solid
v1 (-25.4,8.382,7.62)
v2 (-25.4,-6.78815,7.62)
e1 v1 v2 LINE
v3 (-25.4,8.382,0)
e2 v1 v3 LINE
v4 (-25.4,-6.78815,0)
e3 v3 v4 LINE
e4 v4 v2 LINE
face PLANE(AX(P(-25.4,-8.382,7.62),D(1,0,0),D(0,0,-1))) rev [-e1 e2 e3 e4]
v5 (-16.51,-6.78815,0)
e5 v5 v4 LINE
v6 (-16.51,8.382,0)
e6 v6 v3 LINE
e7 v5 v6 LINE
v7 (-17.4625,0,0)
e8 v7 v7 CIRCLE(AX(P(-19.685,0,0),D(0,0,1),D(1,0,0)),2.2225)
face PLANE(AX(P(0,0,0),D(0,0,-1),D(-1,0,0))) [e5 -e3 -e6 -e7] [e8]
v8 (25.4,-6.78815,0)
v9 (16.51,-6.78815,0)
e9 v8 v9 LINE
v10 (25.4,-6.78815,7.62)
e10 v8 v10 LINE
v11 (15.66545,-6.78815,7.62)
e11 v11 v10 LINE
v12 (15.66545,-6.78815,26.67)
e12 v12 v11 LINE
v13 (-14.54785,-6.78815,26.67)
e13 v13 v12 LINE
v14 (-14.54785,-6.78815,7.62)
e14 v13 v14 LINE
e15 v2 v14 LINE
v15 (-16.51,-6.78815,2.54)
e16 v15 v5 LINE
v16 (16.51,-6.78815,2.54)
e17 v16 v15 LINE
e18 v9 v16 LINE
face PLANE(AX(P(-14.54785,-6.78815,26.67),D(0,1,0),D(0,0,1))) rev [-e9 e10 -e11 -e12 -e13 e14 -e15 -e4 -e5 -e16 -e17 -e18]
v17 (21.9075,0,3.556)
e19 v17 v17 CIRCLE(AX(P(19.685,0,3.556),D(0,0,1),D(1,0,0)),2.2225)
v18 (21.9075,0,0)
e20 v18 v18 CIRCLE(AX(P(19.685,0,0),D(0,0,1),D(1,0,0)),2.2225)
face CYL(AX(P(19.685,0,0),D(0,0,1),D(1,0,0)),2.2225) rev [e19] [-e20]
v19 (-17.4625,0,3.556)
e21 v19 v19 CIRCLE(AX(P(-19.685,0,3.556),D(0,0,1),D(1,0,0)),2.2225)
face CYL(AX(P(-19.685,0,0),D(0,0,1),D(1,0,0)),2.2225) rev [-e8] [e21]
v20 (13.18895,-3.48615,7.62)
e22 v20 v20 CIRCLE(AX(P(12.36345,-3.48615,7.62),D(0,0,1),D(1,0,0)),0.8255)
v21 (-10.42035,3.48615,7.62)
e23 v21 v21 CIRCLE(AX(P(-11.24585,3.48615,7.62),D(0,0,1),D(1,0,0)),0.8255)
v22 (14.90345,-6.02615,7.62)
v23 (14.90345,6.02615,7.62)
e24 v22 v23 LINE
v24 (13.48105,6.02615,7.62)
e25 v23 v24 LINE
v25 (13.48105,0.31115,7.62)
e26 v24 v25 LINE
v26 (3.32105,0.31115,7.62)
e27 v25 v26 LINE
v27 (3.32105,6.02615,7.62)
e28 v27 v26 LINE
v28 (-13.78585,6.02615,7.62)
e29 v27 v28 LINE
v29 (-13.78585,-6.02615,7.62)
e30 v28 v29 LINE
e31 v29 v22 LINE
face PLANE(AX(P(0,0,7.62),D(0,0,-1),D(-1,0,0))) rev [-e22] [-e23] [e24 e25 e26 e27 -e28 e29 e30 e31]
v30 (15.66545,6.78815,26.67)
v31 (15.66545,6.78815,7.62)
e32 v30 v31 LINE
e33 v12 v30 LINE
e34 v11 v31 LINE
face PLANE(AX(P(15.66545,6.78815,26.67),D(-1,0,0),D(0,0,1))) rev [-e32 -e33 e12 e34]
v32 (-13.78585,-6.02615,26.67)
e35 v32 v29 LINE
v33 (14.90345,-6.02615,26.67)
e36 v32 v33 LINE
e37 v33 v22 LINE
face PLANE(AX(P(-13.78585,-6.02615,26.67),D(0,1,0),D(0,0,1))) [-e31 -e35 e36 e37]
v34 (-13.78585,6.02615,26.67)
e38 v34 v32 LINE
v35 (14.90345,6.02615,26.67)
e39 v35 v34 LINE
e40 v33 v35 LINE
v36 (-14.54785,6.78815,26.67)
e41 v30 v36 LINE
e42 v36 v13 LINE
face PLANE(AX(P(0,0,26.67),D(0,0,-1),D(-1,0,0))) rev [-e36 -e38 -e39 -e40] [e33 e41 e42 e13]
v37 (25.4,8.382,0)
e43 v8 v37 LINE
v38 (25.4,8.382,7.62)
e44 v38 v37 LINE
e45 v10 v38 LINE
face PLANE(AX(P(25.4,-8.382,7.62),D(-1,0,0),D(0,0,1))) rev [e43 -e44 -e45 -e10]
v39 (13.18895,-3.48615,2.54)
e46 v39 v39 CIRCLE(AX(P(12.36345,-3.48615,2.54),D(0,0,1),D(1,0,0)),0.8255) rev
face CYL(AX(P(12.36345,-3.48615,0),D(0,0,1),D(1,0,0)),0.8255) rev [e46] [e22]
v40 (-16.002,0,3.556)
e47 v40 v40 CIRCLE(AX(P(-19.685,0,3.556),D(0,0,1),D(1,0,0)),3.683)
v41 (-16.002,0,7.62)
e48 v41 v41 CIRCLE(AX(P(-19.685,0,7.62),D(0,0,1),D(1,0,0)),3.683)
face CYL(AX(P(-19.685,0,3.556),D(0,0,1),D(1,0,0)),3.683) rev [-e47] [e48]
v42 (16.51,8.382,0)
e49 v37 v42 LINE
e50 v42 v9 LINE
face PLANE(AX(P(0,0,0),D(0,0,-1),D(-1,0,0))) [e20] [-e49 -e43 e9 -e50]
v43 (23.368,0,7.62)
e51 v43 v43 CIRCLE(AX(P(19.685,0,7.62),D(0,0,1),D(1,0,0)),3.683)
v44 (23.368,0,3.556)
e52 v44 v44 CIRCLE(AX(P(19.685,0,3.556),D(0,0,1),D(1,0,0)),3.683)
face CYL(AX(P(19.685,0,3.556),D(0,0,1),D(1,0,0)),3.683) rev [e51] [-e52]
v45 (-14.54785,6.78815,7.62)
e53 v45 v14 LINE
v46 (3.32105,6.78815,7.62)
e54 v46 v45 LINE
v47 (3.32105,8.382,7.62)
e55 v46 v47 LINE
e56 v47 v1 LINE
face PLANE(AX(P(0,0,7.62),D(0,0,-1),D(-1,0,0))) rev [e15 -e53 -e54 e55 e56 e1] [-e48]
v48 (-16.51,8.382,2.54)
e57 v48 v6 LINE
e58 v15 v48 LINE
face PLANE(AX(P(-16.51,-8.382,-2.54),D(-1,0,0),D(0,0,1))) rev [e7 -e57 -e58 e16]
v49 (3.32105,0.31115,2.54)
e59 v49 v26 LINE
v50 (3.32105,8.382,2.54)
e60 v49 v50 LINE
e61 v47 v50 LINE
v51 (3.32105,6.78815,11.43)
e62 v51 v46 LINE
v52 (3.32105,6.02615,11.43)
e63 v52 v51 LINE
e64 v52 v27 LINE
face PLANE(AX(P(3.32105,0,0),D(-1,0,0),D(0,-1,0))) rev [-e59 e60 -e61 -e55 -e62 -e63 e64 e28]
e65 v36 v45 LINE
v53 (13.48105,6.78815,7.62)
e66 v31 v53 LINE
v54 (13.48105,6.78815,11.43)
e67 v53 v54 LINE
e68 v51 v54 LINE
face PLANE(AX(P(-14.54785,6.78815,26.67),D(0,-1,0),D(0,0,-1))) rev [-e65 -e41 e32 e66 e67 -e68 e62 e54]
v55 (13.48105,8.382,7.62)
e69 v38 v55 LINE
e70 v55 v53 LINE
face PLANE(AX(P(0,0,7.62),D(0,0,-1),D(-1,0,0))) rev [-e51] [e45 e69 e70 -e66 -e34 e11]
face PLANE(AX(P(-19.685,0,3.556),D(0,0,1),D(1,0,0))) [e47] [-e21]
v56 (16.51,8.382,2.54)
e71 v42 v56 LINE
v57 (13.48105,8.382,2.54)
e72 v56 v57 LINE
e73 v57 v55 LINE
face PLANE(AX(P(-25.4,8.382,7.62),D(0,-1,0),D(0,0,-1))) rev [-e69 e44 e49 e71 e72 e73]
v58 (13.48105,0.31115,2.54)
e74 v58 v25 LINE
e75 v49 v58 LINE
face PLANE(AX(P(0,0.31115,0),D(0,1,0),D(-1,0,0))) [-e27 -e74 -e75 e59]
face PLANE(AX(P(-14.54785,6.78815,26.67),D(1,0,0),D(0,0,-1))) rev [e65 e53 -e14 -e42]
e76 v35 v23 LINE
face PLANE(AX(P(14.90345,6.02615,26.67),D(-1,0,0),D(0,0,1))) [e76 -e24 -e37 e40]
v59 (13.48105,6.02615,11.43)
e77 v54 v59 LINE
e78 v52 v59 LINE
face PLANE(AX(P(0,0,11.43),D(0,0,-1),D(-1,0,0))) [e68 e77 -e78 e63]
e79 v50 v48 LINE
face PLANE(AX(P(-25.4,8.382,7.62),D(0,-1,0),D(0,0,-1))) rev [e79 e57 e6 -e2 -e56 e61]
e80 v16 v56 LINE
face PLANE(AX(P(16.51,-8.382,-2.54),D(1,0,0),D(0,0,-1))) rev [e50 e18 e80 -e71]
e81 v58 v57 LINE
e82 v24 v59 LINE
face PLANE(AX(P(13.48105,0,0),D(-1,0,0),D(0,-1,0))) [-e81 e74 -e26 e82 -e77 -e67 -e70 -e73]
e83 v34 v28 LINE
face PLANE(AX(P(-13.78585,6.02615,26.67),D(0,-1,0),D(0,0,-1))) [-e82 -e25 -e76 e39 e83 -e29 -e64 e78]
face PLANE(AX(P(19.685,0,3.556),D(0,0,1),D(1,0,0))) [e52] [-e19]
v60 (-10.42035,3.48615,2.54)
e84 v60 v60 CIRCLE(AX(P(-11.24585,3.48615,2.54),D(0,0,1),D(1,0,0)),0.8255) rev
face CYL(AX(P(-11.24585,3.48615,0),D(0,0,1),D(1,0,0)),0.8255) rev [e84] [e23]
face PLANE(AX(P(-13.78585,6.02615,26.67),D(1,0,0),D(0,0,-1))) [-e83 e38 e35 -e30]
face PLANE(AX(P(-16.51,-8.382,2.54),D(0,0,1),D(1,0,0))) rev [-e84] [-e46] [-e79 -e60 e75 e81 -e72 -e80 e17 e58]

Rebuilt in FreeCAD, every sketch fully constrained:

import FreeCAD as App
import Part
import Sketcher

V = App.Vector
Q = App.Units.Quantity

doc = App.newDocument("Part")
body = doc.addObject("PartDesign::Body", "Body")

# Sketch on XY plane
sketch1 = doc.addObject("Sketcher::SketchObject", "Sketch")
body.addObject(sketch1)
sketch1.AttachmentSupport = (doc.XY_Plane, [""])
sketch1.MapMode = "FlatFace"
sketch1.addGeometry([
    Part.LineSegment(V(-25.4, 8.382, 0), V(-25.4, -8.382, 0)),
    Part.LineSegment(V(-25.4, -8.382, 0), V(25.4, -8.382, 0)),
    Part.LineSegment(V(25.4, -8.382, 0), V(25.4, 8.382, 0)),
    Part.LineSegment(V(25.4, 8.382, 0), V(-25.4, 8.382, 0)),
], False)
sketch1.addConstraint([
    Sketcher.Constraint("Coincident", 0, 2, 1, 1),
    Sketcher.Constraint("Coincident", 1, 2, 2, 1),
    Sketcher.Constraint("Coincident", 2, 2, 3, 1),
    Sketcher.Constraint("Coincident", 3, 2, 0, 1),
    Sketcher.Constraint("Vertical", 0),
    Sketcher.Constraint("Horizontal", 1),
    Sketcher.Constraint("Vertical", 2),
    Sketcher.Constraint("Horizontal", 3),
    Sketcher.Constraint("Symmetric", 0, 2, 2, 2, -1, 1),
    Sketcher.Constraint("DistanceX", 1, 1, 1, 2, Q("2 in")),
    Sketcher.Constraint("DistanceY", 0, 2, 0, 1, Q("0.66 in")),
])
pad1 = doc.addObject("PartDesign::Pad", "Pad")
body.addObject(pad1)
pad1.Profile = sketch1
pad1.Length = Q("0.3 in")

# Sketch on XY plane
sketch2 = doc.addObject("Sketcher::SketchObject", "Sketch001")
body.addObject(sketch2)
sketch2.AttachmentSupport = (doc.XY_Plane, [""])
sketch2.MapMode = "FlatFace"
sketch2.AttachmentOffset = App.Placement(V(0, 0, 0.3 * 25.4), App.Rotation())
sketch2.addGeometry([
    Part.Circle(V(-11.24585, 3.48615, 0), V(0, 0, 1), 0.8255),  # 0
    Part.Circle(V(12.36345, -3.48615, 0), V(0, 0, 1), 0.8255),  # 1
    Part.LineSegment(V(3.32105, 5.39115, 0), V(3.32105, 0.31115, 0)),  # 2
    Part.LineSegment(V(3.32105, 0.31115, 0), V(13.48105, 0.31115, 0)),  # 3
    Part.LineSegment(V(13.48105, 0.31115, 0), V(13.48105, 5.39115, 0)),  # 4
    Part.LineSegment(V(13.48105, 5.39115, 0), V(3.32105, 5.39115, 0)),  # 5
], False)
sketch2.addConstraint([
    Sketcher.Constraint("Coincident", 2, 2, 3, 1),
    Sketcher.Constraint("Coincident", 3, 2, 4, 1),
    Sketcher.Constraint("Coincident", 4, 2, 5, 1),
    Sketcher.Constraint("Coincident", 5, 2, 2, 1),
    Sketcher.Constraint("Vertical", 2),
    Sketcher.Constraint("Horizontal", 3),
    Sketcher.Constraint("Vertical", 4),
    Sketcher.Constraint("Horizontal", 5),
    Sketcher.Constraint("Equal", 0, 1),
    Sketcher.Constraint("Diameter", 0, Q("0.065 in")),
    Sketcher.Constraint("DistanceX", 3, 1, 3, 2, Q("0.4 in")),
    Sketcher.Constraint("DistanceY", 2, 2, 2, 1, Q("0.2 in")),
    Sketcher.Constraint("DistanceX", 2, 2, 1, 3, Q("0.356 in")),
    Sketcher.Constraint("DistanceY", 2, 2, 0, 3, Q("0.125 in")),
    Sketcher.Constraint("DistanceX", 0, 3, 1, 3, Q("0.9295 in")),
    Sketcher.Constraint("DistanceY", 1, 3, 0, 3, Q("0.2745 in")),
    Sketcher.Constraint("DistanceX", 0, 3, -1, 1, Q("11.24585 mm")),
    Sketcher.Constraint("DistanceY", -1, 1, 0, 3, Q("3.48615 mm")),
])
pocket1 = doc.addObject("PartDesign::Pocket", "Pocket")
body.addObject(pocket1)
pocket1.Profile = sketch2
pocket1.Length = Q("0.3 in")

# Sketch on XY plane
sketch3 = doc.addObject("Sketcher::SketchObject", "Sketch002")
body.addObject(sketch3)
sketch3.AttachmentSupport = (doc.XY_Plane, [""])
sketch3.MapMode = "FlatFace"
sketch3.AttachmentOffset = App.Placement(V(0, 0, 0.3 * 25.4), App.Rotation())
sketch3.addGeometry([
    Part.Circle(V(-19.685, 0, 0), V(0, 0, 1), 3.683),
    Part.Circle(V(-19.685, 0, 0), V(0, 0, 1), 2.2225),
    Part.Circle(V(19.685, 0, 0), V(0, 0, 1), 3.683),
    Part.Circle(V(19.685, 0, 0), V(0, 0, 1), 2.2225),
], False)
sketch3.addConstraint([
    Sketcher.Constraint("Coincident", 1, 3, 0, 3),
    Sketcher.Constraint("Coincident", 3, 3, 2, 3),
    Sketcher.Constraint("Equal", 0, 2),
    Sketcher.Constraint("Equal", 1, 3),
    Sketcher.Constraint("Symmetric", 0, 3, 2, 3, -1, 1),
    Sketcher.Constraint("PointOnObject", 0, 3, -1),
    Sketcher.Constraint("Diameter", 0, Q("0.29 in")),
    Sketcher.Constraint("Diameter", 1, Q("0.175 in")),
    Sketcher.Constraint("DistanceX", 0, 3, 2, 3, Q("1.55 in")),
])
pocket2 = doc.addObject("PartDesign::Pocket", "Pocket001")
body.addObject(pocket2)
pocket2.Profile = sketch3
pocket2.Length = Q("0.16 in")

# Sketch on XY plane
sketch4 = doc.addObject("Sketcher::SketchObject", "Sketch003")
body.addObject(sketch4)
sketch4.AttachmentSupport = (doc.XY_Plane, [""])
sketch4.MapMode = "FlatFace"
sketch4.AttachmentOffset = App.Placement(V(0, 0, 0.3 * 25.4), App.Rotation())
sketch4.addGeometry([
    Part.Circle(V(-19.685, 0, 0), V(0, 0, 1), 2.2225),
    Part.Circle(V(19.685, 0, 0), V(0, 0, 1), 2.2225),
], False)
sketch4.addConstraint([
    Sketcher.Constraint("Equal", 0, 1),
    Sketcher.Constraint("Symmetric", 0, 3, 1, 3, -1, 1),
    Sketcher.Constraint("PointOnObject", 0, 3, -1),
    Sketcher.Constraint("Diameter", 0, Q("0.175 in")),
    Sketcher.Constraint("DistanceX", 0, 3, 1, 3, Q("1.55 in")),
])
pocket3 = doc.addObject("PartDesign::Pocket", "Pocket002")
body.addObject(pocket3)
pocket3.Profile = sketch4
pocket3.Length = Q("0.3 in")

# Sketch on XZ plane
sketch5 = doc.addObject("Sketcher::SketchObject", "Sketch004")
body.addObject(sketch5)
sketch5.AttachmentSupport = (doc.XZ_Plane, [""])
sketch5.MapMode = "FlatFace"
sketch5.AttachmentOffset = App.Placement(V(0, 0, -0.33 * 25.4), App.Rotation())
sketch5.addGeometry([
    Part.LineSegment(V(-16.51, -2.54, 0), V(-16.51, 2.54, 0)),
    Part.LineSegment(V(-16.51, 2.54, 0), V(16.51, 2.54, 0)),
    Part.LineSegment(V(16.51, 2.54, 0), V(16.51, -2.54, 0)),
    Part.LineSegment(V(16.51, -2.54, 0), V(-16.51, -2.54, 0)),
], False)
sketch5.addConstraint([
    Sketcher.Constraint("Coincident", 0, 2, 1, 1),
    Sketcher.Constraint("Coincident", 1, 2, 2, 1),
    Sketcher.Constraint("Coincident", 2, 2, 3, 1),
    Sketcher.Constraint("Coincident", 3, 2, 0, 1),
    Sketcher.Constraint("Vertical", 0),
    Sketcher.Constraint("Horizontal", 1),
    Sketcher.Constraint("Vertical", 2),
    Sketcher.Constraint("Horizontal", 3),
    Sketcher.Constraint("Symmetric", 0, 2, 2, 2, -1, 1),
    Sketcher.Constraint("DistanceX", 1, 1, 1, 2, Q("1.3 in")),
    Sketcher.Constraint("DistanceY", 0, 1, 0, 2, Q("0.2 in")),
])
pocket4 = doc.addObject("PartDesign::Pocket", "Pocket003")
body.addObject(pocket4)
pocket4.Profile = sketch5
pocket4.Type = "ThroughAll"
pocket4.Midplane = True

# Sketch on XZ plane
sketch6 = doc.addObject("Sketcher::SketchObject", "Sketch005")
body.addObject(sketch6)
sketch6.AttachmentSupport = (doc.XZ_Plane, [""])
sketch6.MapMode = "FlatFace"
sketch6.AttachmentOffset = App.Placement(V(0, 0, -5.39115), App.Rotation())
sketch6.addGeometry([
    Part.LineSegment(V(3.32105, 5.08, 0), V(3.32105, 2.54, 0)),
    Part.LineSegment(V(3.32105, 2.54, 0), V(13.48105, 2.54, 0)),
    Part.LineSegment(V(13.48105, 2.54, 0), V(13.48105, 5.08, 0)),
    Part.LineSegment(V(13.48105, 5.08, 0), V(3.32105, 5.08, 0)),
], False)
sketch6.addConstraint([
    Sketcher.Constraint("Coincident", 0, 2, 1, 1),
    Sketcher.Constraint("Coincident", 1, 2, 2, 1),
    Sketcher.Constraint("Coincident", 2, 2, 3, 1),
    Sketcher.Constraint("Coincident", 3, 2, 0, 1),
    Sketcher.Constraint("Vertical", 0),
    Sketcher.Constraint("Horizontal", 1),
    Sketcher.Constraint("Vertical", 2),
    Sketcher.Constraint("Horizontal", 3),
    Sketcher.Constraint("DistanceX", 1, 1, 1, 2, Q("0.4 in")),
    Sketcher.Constraint("DistanceY", 0, 2, 0, 1, Q("0.1 in")),
    Sketcher.Constraint("DistanceY", -1, 1, 0, 2, Q("0.1 in")),
    Sketcher.Constraint("DistanceX", -1, 1, 0, 2, Q("3.32105 mm")),
])
pocket5 = doc.addObject("PartDesign::Pocket", "Pocket004")
body.addObject(pocket5)
pocket5.Profile = sketch6
pocket5.Length = Q("0.16 in")

# Sketch on XY plane
sketch7 = doc.addObject("Sketcher::SketchObject", "Sketch006")
body.addObject(sketch7)
sketch7.AttachmentSupport = (doc.XY_Plane, [""])
sketch7.MapMode = "FlatFace"
sketch7.AttachmentOffset = App.Placement(V(0, 0, 0.3 * 25.4), App.Rotation())
sketch7.addGeometry([
    Part.LineSegment(V(-14.54785, 6.78815, 0), V(-14.54785, -6.78815, 0)),  # 0
    Part.LineSegment(V(-14.54785, -6.78815, 0), V(15.66545, -6.78815, 0)),  # 1
    Part.LineSegment(V(15.66545, -6.78815, 0), V(15.66545, 6.78815, 0)),  # 2
    Part.LineSegment(V(15.66545, 6.78815, 0), V(-14.54785, 6.78815, 0)),  # 3
    Part.LineSegment(V(14.90345, -6.02615, 0), V(-13.78585, -6.02615, 0)),  # 4
    Part.LineSegment(V(-13.78585, -6.02615, 0), V(-13.78585, 6.02615, 0)),  # 5
    Part.LineSegment(V(-13.78585, 6.02615, 0), V(14.90345, 6.02615, 0)),  # 6
    Part.LineSegment(V(14.90345, 6.02615, 0), V(14.90345, -6.02615, 0)),  # 7
], False)
sketch7.addConstraint([
    Sketcher.Constraint("Coincident", 0, 2, 1, 1),
    Sketcher.Constraint("Coincident", 1, 2, 2, 1),
    Sketcher.Constraint("Coincident", 2, 2, 3, 1),
    Sketcher.Constraint("Coincident", 3, 2, 0, 1),
    Sketcher.Constraint("Coincident", 4, 2, 5, 1),
    Sketcher.Constraint("Coincident", 5, 2, 6, 1),
    Sketcher.Constraint("Coincident", 6, 2, 7, 1),
    Sketcher.Constraint("Coincident", 7, 2, 4, 1),
    Sketcher.Constraint("Vertical", 0),
    Sketcher.Constraint("Horizontal", 1),
    Sketcher.Constraint("Vertical", 2),
    Sketcher.Constraint("Horizontal", 3),
    Sketcher.Constraint("Horizontal", 4),
    Sketcher.Constraint("Vertical", 5),
    Sketcher.Constraint("Horizontal", 6),
    Sketcher.Constraint("Vertical", 7),
    Sketcher.Constraint("DistanceX", 0, 2, 4, 2, Q("0.03 in")),
    Sketcher.Constraint("DistanceY", 0, 2, 4, 2, Q("0.03 in")),
    Sketcher.Constraint("DistanceY", 5, 2, 3, 2, Q("0.03 in")),
    Sketcher.Constraint("DistanceX", 6, 2, 2, 2, Q("0.03 in")),
    Sketcher.Constraint("DistanceX", 1, 1, 1, 2, Q("1.1895 in")),
    Sketcher.Constraint("DistanceY", 0, 2, 0, 1, Q("0.5345 in")),
    Sketcher.Constraint("DistanceX", 0, 2, -1, 1, Q("14.54785 mm")),
    Sketcher.Constraint("DistanceY", 0, 2, -1, 1, Q("6.78815 mm")),
])
pad2 = doc.addObject("PartDesign::Pad", "Pad001")
body.addObject(pad2)
pad2.Profile = sketch7
pad2.Length = Q("0.75 in")

# Sketch on XY plane
sketch8 = doc.addObject("Sketcher::SketchObject", "Sketch007")
body.addObject(sketch8)
sketch8.AttachmentSupport = (doc.XY_Plane, [""])
sketch8.MapMode = "FlatFace"
sketch8.AttachmentOffset = App.Placement(V(0, 0, 0.2 * 25.4), App.Rotation())
sketch8.addGeometry([
    Part.LineSegment(V(13.48105, 8.382, 0), V(13.48105, 5.39115, 0)),
    Part.LineSegment(V(13.48105, 5.39115, 0), V(3.32105, 5.39115, 0)),
    Part.LineSegment(V(3.32105, 5.39115, 0), V(3.32105, 8.382, 0)),
    Part.LineSegment(V(3.32105, 8.382, 0), V(13.48105, 8.382, 0)),
], False)
sketch8.addConstraint([
    Sketcher.Constraint("Coincident", 0, 2, 1, 1),
    Sketcher.Constraint("Coincident", 1, 2, 2, 1),
    Sketcher.Constraint("Coincident", 2, 2, 3, 1),
    Sketcher.Constraint("Coincident", 3, 2, 0, 1),
    Sketcher.Constraint("Vertical", 0),
    Sketcher.Constraint("Horizontal", 1),
    Sketcher.Constraint("Vertical", 2),
    Sketcher.Constraint("Horizontal", 3),
    Sketcher.Constraint("DistanceX", 1, 2, 1, 1, Q("0.4 in")),
    Sketcher.Constraint("DistanceY", -1, 1, 2, 2, Q("0.33 in")),
    Sketcher.Constraint("DistanceY", 0, 2, 0, 1, Q("2.99085 mm")),
    Sketcher.Constraint("DistanceX", -1, 1, 0, 2, Q("13.48105 mm")),
])
pocket6 = doc.addObject("PartDesign::Pocket", "Pocket005")
body.addObject(pocket6)
pocket6.Profile = sketch8
pocket6.Length = Q("0.25 in")
pocket6.Reversed = True

# Sketch on XY plane
sketch9 = doc.addObject("Sketcher::SketchObject", "Sketch008")
body.addObject(sketch9)
sketch9.AttachmentSupport = (doc.XY_Plane, [""])
sketch9.MapMode = "FlatFace"
sketch9.AttachmentOffset = App.Placement(V(0, 0, 0.3 * 25.4), App.Rotation())
sketch9.addGeometry([
    Part.LineSegment(V(-25.4, -6.78815, 0), V(-25.4, -8.382, 0)),
    Part.LineSegment(V(-25.4, -8.382, 0), V(25.4, -8.382, 0)),
    Part.LineSegment(V(25.4, -8.382, 0), V(25.4, -6.78815, 0)),
    Part.LineSegment(V(25.4, -6.78815, 0), V(-25.4, -6.78815, 0)),
], False)
sketch9.addConstraint([
    Sketcher.Constraint("Coincident", 0, 2, 1, 1),
    Sketcher.Constraint("Coincident", 1, 2, 2, 1),
    Sketcher.Constraint("Coincident", 2, 2, 3, 1),
    Sketcher.Constraint("Coincident", 3, 2, 0, 1),
    Sketcher.Constraint("Vertical", 0),
    Sketcher.Constraint("Horizontal", 1),
    Sketcher.Constraint("Vertical", 2),
    Sketcher.Constraint("Horizontal", 3),
    Sketcher.Constraint("DistanceX", 1, 1, 1, 2, Q("2 in")),
    Sketcher.Constraint("DistanceX", 0, 2, -1, 1, Q("1 in")),
    Sketcher.Constraint("DistanceY", 0, 2, -1, 1, Q("0.33 in")),
    Sketcher.Constraint("DistanceY", 0, 2, 0, 1, Q("1.59385 mm")),
])
pocket7 = doc.addObject("PartDesign::Pocket", "Pocket006")
body.addObject(pocket7)
pocket7.Profile = sketch9
pocket7.Type = "ThroughAll"
pocket7.Midplane = True

doc.recompute()
